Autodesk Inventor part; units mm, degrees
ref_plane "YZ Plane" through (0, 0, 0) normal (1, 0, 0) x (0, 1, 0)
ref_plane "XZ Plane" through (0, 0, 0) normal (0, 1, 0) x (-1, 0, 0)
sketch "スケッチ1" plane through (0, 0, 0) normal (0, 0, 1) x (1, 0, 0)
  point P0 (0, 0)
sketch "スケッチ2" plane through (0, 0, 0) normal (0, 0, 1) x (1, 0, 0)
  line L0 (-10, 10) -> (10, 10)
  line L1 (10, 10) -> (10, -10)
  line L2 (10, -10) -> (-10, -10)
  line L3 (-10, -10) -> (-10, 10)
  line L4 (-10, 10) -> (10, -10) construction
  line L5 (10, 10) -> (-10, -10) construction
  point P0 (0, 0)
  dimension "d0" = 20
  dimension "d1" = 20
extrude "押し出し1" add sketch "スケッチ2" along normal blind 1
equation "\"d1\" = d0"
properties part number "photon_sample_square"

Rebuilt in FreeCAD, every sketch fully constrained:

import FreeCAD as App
import Part
import Sketcher
from FreeCAD import Vector

doc = App.newDocument("Part")
body = doc.addObject("PartDesign::Body", "Body")

# Sketch on XY plane
sketch1 = doc.addObject("Sketcher::SketchObject", "Sketch")
body.addObject(sketch1)
sketch1.AttachmentSupport = (doc.XY_Plane, [""])
sketch1.MapMode = "FlatFace"
sketch1.addGeometry(Part.LineSegment(Vector(10, 10, 0), Vector(-10, 10, 0)), False)
sketch1.addGeometry(Part.LineSegment(Vector(-10, 10, 0), Vector(-10, -10, 0)), False)
sketch1.addGeometry(Part.LineSegment(Vector(-10, -10, 0), Vector(10, -10, 0)), False)
sketch1.addGeometry(Part.LineSegment(Vector(10, -10, 0), Vector(10, 10, 0)), False)
sketch1.addConstraint(Sketcher.Constraint("Coincident", 0, 2, 1, 1))
sketch1.addConstraint(Sketcher.Constraint("Coincident", 1, 2, 2, 1))
sketch1.addConstraint(Sketcher.Constraint("Coincident", 2, 2, 3, 1))
sketch1.addConstraint(Sketcher.Constraint("Coincident", 3, 2, 0, 1))
sketch1.addConstraint(Sketcher.Constraint("Horizontal", 0))
sketch1.addConstraint(Sketcher.Constraint("Vertical", 1))
sketch1.addConstraint(Sketcher.Constraint("Horizontal", 2))
sketch1.addConstraint(Sketcher.Constraint("Vertical", 3))
sketch1.addConstraint(Sketcher.Constraint("Symmetric", 0, 2, 2, 2, -1, 1))
sketch1.addConstraint(Sketcher.Constraint("Equal", 2, 1))
sketch1.addConstraint(Sketcher.Constraint("DistanceX", 0, 2, 0, 1, 20.0))
pad1 = doc.addObject("PartDesign::Pad", "Pad")
body.addObject(pad1)
pad1.Profile = sketch1
pad1.Length = 1

doc.recompute()
